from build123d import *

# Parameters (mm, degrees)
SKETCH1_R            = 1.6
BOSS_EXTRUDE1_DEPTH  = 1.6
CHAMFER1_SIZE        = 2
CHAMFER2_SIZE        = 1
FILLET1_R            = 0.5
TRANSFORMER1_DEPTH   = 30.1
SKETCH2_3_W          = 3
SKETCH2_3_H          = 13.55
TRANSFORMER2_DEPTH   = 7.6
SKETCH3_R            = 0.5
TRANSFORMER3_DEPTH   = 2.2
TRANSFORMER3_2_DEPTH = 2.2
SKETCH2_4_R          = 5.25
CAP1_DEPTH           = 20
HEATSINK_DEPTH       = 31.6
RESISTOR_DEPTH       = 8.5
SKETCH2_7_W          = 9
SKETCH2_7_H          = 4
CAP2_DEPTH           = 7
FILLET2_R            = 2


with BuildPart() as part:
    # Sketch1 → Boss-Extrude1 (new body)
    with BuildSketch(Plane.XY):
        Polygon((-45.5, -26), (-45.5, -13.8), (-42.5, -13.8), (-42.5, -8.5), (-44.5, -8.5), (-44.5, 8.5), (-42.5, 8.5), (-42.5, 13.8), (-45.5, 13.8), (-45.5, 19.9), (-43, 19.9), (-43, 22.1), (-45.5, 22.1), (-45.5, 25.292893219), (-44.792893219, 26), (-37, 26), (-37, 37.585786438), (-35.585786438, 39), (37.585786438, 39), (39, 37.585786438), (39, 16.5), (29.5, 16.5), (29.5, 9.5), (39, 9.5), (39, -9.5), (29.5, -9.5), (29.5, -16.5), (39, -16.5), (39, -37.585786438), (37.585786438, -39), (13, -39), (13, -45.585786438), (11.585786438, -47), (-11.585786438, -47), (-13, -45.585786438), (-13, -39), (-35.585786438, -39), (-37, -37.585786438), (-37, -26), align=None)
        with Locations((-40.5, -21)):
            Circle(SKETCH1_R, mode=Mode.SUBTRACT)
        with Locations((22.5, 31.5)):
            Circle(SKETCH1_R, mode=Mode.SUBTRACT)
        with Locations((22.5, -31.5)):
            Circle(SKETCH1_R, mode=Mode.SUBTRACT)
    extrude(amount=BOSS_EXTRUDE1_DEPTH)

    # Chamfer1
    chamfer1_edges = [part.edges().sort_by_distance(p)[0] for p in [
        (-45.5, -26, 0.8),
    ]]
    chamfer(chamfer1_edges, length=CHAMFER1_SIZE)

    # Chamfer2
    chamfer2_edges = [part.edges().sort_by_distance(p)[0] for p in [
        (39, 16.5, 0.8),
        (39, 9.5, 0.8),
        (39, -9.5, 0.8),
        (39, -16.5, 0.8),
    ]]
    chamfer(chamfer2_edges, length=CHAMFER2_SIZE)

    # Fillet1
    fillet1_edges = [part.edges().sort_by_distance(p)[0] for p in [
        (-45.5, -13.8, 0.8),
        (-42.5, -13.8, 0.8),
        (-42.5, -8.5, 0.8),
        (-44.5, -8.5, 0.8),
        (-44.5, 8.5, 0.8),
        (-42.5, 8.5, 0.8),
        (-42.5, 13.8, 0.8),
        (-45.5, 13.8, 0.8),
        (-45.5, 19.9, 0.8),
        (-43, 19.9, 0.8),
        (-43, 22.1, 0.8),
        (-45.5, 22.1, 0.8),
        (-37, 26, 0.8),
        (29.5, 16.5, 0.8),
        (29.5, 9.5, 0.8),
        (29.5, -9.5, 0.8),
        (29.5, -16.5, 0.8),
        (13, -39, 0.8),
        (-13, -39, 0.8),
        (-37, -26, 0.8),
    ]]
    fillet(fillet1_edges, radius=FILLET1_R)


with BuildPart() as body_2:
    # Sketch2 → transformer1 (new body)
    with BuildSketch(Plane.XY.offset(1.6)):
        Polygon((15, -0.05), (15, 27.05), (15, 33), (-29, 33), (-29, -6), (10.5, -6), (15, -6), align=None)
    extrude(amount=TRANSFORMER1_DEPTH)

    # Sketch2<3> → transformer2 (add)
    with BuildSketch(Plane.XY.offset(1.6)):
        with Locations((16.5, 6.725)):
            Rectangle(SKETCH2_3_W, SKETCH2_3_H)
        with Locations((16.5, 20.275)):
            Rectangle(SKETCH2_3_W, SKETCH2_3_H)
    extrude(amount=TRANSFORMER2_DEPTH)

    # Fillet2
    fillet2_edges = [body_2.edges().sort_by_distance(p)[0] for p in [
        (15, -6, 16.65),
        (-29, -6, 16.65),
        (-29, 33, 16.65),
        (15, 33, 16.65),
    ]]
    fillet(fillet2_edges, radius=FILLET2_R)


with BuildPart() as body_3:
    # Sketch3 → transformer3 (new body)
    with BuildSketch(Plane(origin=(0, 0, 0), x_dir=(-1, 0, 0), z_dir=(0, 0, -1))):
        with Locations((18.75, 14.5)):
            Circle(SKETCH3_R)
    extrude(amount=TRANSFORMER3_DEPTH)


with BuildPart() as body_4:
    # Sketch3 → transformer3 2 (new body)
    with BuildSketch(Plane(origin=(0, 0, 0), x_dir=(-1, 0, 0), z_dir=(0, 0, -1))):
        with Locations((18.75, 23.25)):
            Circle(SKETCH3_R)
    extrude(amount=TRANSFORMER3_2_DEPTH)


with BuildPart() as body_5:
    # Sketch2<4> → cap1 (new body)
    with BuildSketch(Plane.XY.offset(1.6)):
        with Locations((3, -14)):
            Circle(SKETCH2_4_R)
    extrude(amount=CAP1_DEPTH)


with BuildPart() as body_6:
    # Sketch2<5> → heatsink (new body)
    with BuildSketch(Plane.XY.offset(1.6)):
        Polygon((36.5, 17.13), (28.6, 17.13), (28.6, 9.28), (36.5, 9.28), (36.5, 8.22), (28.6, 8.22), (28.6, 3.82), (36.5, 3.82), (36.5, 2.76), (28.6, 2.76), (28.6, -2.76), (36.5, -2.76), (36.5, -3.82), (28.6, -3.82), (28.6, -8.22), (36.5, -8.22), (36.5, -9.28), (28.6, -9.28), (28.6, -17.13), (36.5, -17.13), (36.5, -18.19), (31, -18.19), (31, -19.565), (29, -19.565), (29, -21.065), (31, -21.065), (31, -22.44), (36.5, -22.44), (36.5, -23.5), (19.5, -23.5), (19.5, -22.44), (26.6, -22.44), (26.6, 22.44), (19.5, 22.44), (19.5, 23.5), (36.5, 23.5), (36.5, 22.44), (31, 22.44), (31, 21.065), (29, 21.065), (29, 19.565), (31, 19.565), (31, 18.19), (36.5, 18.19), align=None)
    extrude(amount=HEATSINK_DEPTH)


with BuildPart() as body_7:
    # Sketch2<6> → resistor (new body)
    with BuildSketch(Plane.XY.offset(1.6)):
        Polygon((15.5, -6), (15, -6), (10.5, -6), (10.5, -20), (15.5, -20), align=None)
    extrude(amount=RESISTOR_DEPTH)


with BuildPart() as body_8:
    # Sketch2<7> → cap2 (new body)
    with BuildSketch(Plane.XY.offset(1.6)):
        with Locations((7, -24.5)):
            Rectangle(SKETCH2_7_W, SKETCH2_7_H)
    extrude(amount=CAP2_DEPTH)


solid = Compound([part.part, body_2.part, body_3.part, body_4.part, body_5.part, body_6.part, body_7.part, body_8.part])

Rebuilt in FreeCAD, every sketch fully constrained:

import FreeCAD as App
import Part
import Sketcher
from FreeCAD import Vector


def edges_at(feature, points):
    """Names of the edges that pass closest to the given points."""
    edges = feature.Shape.Edges
    near = lambda p: min(range(len(edges)), key=lambda i: edges[i].distToShape(Part.Vertex(*p))[0])
    return sorted({f"Edge{near(p) + 1}" for p in points})


def add_polygon(sketch, points):
    """Adds a closed chain of lines whose ends are joined by coincident constraints."""
    first, n = sketch.GeometryCount, len(points)
    for a, b in zip(points, points[1:] + points[:1]):
        sketch.addGeometry(Part.LineSegment(App.Vector(*a, 0), App.Vector(*b, 0)), False)
    for i in range(n):
        sketch.addConstraint(Sketcher.Constraint("Coincident", first + i, 2, first + (i + 1) % n, 1))

doc = App.newDocument("Part")
body = doc.addObject("PartDesign::Body", "Body")

# Sketch on XY plane
sketch1 = body.newObject("Sketcher::SketchObject", "Sketch")
sketch1.AttachmentSupport = (doc.getObject("XY_Plane"), [""])
sketch1.MapMode = "FlatFace"
add_polygon(sketch1, [(-45.5, -13.8), (-45.5, -26), (-37, -26), (-37, -37.585786), (-35.585786, -39), (-13, -39), (-13, -45.585786), (-11.585786, -47), (11.585786, -47), (13, -45.585786), (13, -39), (37.585786, -39), (39, -37.585786), (39, -16.5), (29.5, -16.5), (29.5, -9.5), (39, -9.5), (39, 9.5), (29.5, 9.5), (29.5, 16.5), (39, 16.5), (39, 37.585786), (37.585786, 39), (-35.585786, 39), (-37, 37.585786), (-37, 26), (-44.792893, 26), (-45.5, 25.292893), (-45.5, 22.1), (-43, 22.1), (-43, 19.9), (-45.5, 19.9), (-45.5, 13.8), (-42.5, 13.8), (-42.5, 8.5), (-44.5, 8.5), (-44.5, -8.5), (-42.5, -8.5), (-42.5, -13.8)])  # lines 0-38
sketch1.addGeometry(Part.Circle(Vector(22.5, -31.5, 0), Vector(0, 0, 1), 1.6), False)  # 39
sketch1.addGeometry(Part.Circle(Vector(-40.5, -21, 0), Vector(0, 0, 1), 1.6), False)  # 40
sketch1.addGeometry(Part.Circle(Vector(22.5, 31.5, 0), Vector(0, 0, 1), 1.6), False)  # 41
sketch1.addConstraint(Sketcher.Constraint("Vertical", 0))
sketch1.addConstraint(Sketcher.Constraint("Horizontal", 1))
sketch1.addConstraint(Sketcher.Constraint("Vertical", 2))
sketch1.addConstraint(Sketcher.Constraint("Horizontal", 4))
sketch1.addConstraint(Sketcher.Constraint("Vertical", 5))
sketch1.addConstraint(Sketcher.Constraint("Horizontal", 7))
sketch1.addConstraint(Sketcher.Constraint("Vertical", 9))
sketch1.addConstraint(Sketcher.Constraint("Horizontal", 10))
sketch1.addConstraint(Sketcher.Constraint("Vertical", 12))
sketch1.addConstraint(Sketcher.Constraint("Horizontal", 13))
sketch1.addConstraint(Sketcher.Constraint("Vertical", 14))
sketch1.addConstraint(Sketcher.Constraint("Horizontal", 15))
sketch1.addConstraint(Sketcher.Constraint("Vertical", 16))
sketch1.addConstraint(Sketcher.Constraint("Horizontal", 17))
sketch1.addConstraint(Sketcher.Constraint("Vertical", 18))
sketch1.addConstraint(Sketcher.Constraint("Horizontal", 19))
sketch1.addConstraint(Sketcher.Constraint("Vertical", 20))
sketch1.addConstraint(Sketcher.Constraint("Horizontal", 22))
sketch1.addConstraint(Sketcher.Constraint("Vertical", 24))
sketch1.addConstraint(Sketcher.Constraint("Horizontal", 25))
sketch1.addConstraint(Sketcher.Constraint("Vertical", 27))
sketch1.addConstraint(Sketcher.Constraint("Horizontal", 28))
sketch1.addConstraint(Sketcher.Constraint("Vertical", 29))
sketch1.addConstraint(Sketcher.Constraint("Horizontal", 30))
sketch1.addConstraint(Sketcher.Constraint("Vertical", 31))
sketch1.addConstraint(Sketcher.Constraint("Horizontal", 32))
sketch1.addConstraint(Sketcher.Constraint("Vertical", 33))
sketch1.addConstraint(Sketcher.Constraint("Horizontal", 34))
sketch1.addConstraint(Sketcher.Constraint("Vertical", 35))
sketch1.addConstraint(Sketcher.Constraint("Horizontal", 36))
sketch1.addConstraint(Sketcher.Constraint("Vertical", 37))
sketch1.addConstraint(Sketcher.Constraint("Horizontal", 38))
sketch1.addConstraint(Sketcher.Constraint("Equal", 39, 40))
sketch1.addConstraint(Sketcher.Constraint("Equal", 40, 41))
sketch1.addConstraint(Sketcher.Constraint("Symmetric", 5, 2, 8, 2, -2))
sketch1.addConstraint(Sketcher.Constraint("Symmetric", 39, 3, 41, 3, -1))
sketch1.addConstraint(Sketcher.Constraint("Symmetric", 14, 2, 17, 2, -1))
sketch1.addConstraint(Sketcher.Constraint("Symmetric", 12, 2, 19, 2, -1))
sketch1.addConstraint(Sketcher.Constraint("Symmetric", 10, 2, 21, 2, -1))
sketch1.addConstraint(Sketcher.Constraint("Symmetric", 3, 2, 22, 2, -1))
sketch1.addConstraint(Sketcher.Constraint("Symmetric", 2, 2, 23, 2, -1))
sketch1.addConstraint(Sketcher.Constraint("Symmetric", 33, 2, 36, 2, -1))
sketch1.addConstraint(Sketcher.Constraint("Symmetric", 31, 2, 38, 2, -1))
sketch1.addConstraint(Sketcher.Constraint("Parallel", 3, 6))
sketch1.addConstraint(Sketcher.Constraint("Perpendicular", 6, 8))
sketch1.addConstraint(Sketcher.Constraint("Parallel", 8, 11))
sketch1.addConstraint(Sketcher.Constraint("Perpendicular", 11, 21))
sketch1.addConstraint(Sketcher.Constraint("Perpendicular", 21, 23))
sketch1.addConstraint(Sketcher.Constraint("Parallel", 23, 26))
sketch1.addConstraint(Sketcher.Constraint("Horizontal", 2, 2, 11, 2))
sketch1.addConstraint(Sketcher.Constraint("Vertical", 12, 2, 15, 2))
sketch1.addConstraint(Sketcher.Constraint("Vertical", 0, 2, 26, 2))
sketch1.addConstraint(Sketcher.Constraint("Equal", 2, 24))
sketch1.addConstraint(Sketcher.Constraint("Equal", 3, 6))
sketch1.addConstraint(Sketcher.Constraint("Diameter", 39, 3.2))
sketch1.addConstraint(Sketcher.Constraint("DistanceX", 32, 1, 32, 2, 3.0))
sketch1.addConstraint(Sketcher.Constraint("DistanceX", 34, 2, 34, 1, 2.0))
sketch1.addConstraint(Sketcher.Constraint("DistanceY", 14, 1, 14, 2, 7.0))
sketch1.addConstraint(Sketcher.Constraint("DistanceY", 16, 1, 16, 2, 19.0))
sketch1.addConstraint(Sketcher.Constraint("DistanceY", 35, 2, 35, 1, 17.0))
sketch1.addConstraint(Sketcher.Constraint("Distance", 3, 2.0))
sketch1.addConstraint(Sketcher.Constraint("Distance", 26, 1.0))
sketch1.addConstraint(Sketcher.Constraint("DistanceX", 1, 1, 1, 2, 8.5))
sketch1.addConstraint(Sketcher.Constraint("DistanceX", 13, 2, 13, 1, 9.5))
sketch1.addConstraint(Sketcher.Constraint("DistanceX", 28, 1, 28, 2, 2.5))
sketch1.addConstraint(Sketcher.Constraint("DistanceY", 0, 2, 0, 1, 12.2))
sketch1.addConstraint(Sketcher.Constraint("DistanceY", 29, 2, 29, 1, 2.2))
sketch1.addConstraint(Sketcher.Constraint("DistanceY", 31, 2, 31, 1, 6.1))
sketch1.addConstraint(Sketcher.Constraint("DistanceY", 33, 2, 33, 1, 5.3))
sketch1.addConstraint(Sketcher.Constraint("DistanceY", 40, 3, -1, 1, 21.0))
sketch1.addConstraint(Sketcher.Constraint("DistanceX", 1, 2, -1, 1, 37.0))
sketch1.addConstraint(Sketcher.Constraint("DistanceY", 3, 2, -1, 1, 39.0))
sketch1.addConstraint(Sketcher.Constraint("DistanceX", 4, 2, -1, 1, 13.0))
sketch1.addConstraint(Sketcher.Constraint("DistanceY", 6, 2, -1, 1, 47.0))
sketch1.addConstraint(Sketcher.Constraint("DistanceX", -1, 1, 11, 2, 39.0))
sketch1.addConstraint(Sketcher.Constraint("DistanceX", 40, 3, 39, 3, 63.0))
sketch1.addConstraint(Sketcher.Constraint("DistanceY", 39, 3, 41, 3, 63.0))
sketch1.addConstraint(Sketcher.Constraint("DistanceX", 0, 2, 40, 3, 5.0))
pad1 = body.newObject("PartDesign::Pad", "Pad")
pad1.Profile = sketch1
pad1.Length = 1.6
doc.recompute()

chamfer = body.newObject("PartDesign::Chamfer", "Chamfer")
chamfer.Base = (pad1, edges_at(pad1, [(-45.5, -26, 0.8)]))
chamfer.Size = 2
doc.recompute()

chamfer2 = body.newObject("PartDesign::Chamfer", "Chamfer001")
chamfer2.Base = (chamfer, edges_at(chamfer, [
    (39, 16.5, 0.8),
    (39, 9.5, 0.8),
    (39, -9.5, 0.8),
    (39, -16.5, 0.8),
]))
chamfer2.Size = 1
doc.recompute()

fillet = body.newObject("PartDesign::Fillet", "Fillet")
fillet.Base = (chamfer2, edges_at(chamfer2, [
    (-45.5, -13.8, 0.8),
    (-42.5, -13.8, 0.8),
    (-42.5, -8.5, 0.8),
    (-44.5, -8.5, 0.8),
    (-44.5, 8.5, 0.8),
    (-42.5, 8.5, 0.8),
    (-42.5, 13.8, 0.8),
    (-45.5, 13.8, 0.8),
    (-45.5, 19.9, 0.8),
    (-43, 19.9, 0.8),
    (-43, 22.1, 0.8),
    (-45.5, 22.1, 0.8),
    (-37, 26, 0.8),
    (29.5, 16.5, 0.8),
    (29.5, 9.5, 0.8),
    (29.5, -9.5, 0.8),
    (29.5, -16.5, 0.8),
    (13, -39, 0.8),
    (-13, -39, 0.8),
    (-37, -26, 0.8),
]))
fillet.Radius = 0.5
body2 = doc.addObject("PartDesign::Body", "Body001")

# Sketch on XY plane
sketch2 = body2.newObject("Sketcher::SketchObject", "Sketch001")
sketch2.AttachmentSupport = (doc.getObject("XY_Plane001"), [""])
sketch2.MapMode = "FlatFace"
sketch2.AttachmentOffset = App.Placement(Vector(0, 0, 1.6), App.Rotation())
add_polygon(sketch2, [(15, 33), (-29, 33), (-29, -6), (15, -6)])  # lines 0-3
sketch2.addConstraint(Sketcher.Constraint("Horizontal", 0))
sketch2.addConstraint(Sketcher.Constraint("Vertical", 1))
sketch2.addConstraint(Sketcher.Constraint("Horizontal", 2))
sketch2.addConstraint(Sketcher.Constraint("Vertical", 3))
sketch2.addConstraint(Sketcher.Constraint("DistanceX", 0, 2, 0, 1, 44.0))
sketch2.addConstraint(Sketcher.Constraint("DistanceY", 1, 2, 1, 1, 39.0))
sketch2.addConstraint(Sketcher.Constraint("DistanceX", 0, 2, -1, 1, 29.0))
sketch2.addConstraint(Sketcher.Constraint("DistanceY", -1, 1, 0, 2, 33.0))
pad2 = body2.newObject("PartDesign::Pad", "Pad001")
pad2.Profile = sketch2
pad2.Length = 30.1

# Sketch on XY plane
sketch3 = body2.newObject("Sketcher::SketchObject", "Sketch002")
sketch3.AttachmentSupport = (doc.getObject("XY_Plane001"), [""])
sketch3.MapMode = "FlatFace"
sketch3.AttachmentOffset = App.Placement(Vector(0, 0, 1.6), App.Rotation())
add_polygon(sketch3, [(15, -0.05), (18, -0.05), (18, 27.05), (15, 27.05)])  # lines 0-3
sketch3.addConstraint(Sketcher.Constraint("Horizontal", 0))
sketch3.addConstraint(Sketcher.Constraint("Vertical", 1))
sketch3.addConstraint(Sketcher.Constraint("Horizontal", 2))
sketch3.addConstraint(Sketcher.Constraint("Vertical", 3))
sketch3.addConstraint(Sketcher.Constraint("DistanceX", 0, 1, 0, 2, 3.0))
sketch3.addConstraint(Sketcher.Constraint("DistanceY", 1, 1, 1, 2, 27.1))
sketch3.addConstraint(Sketcher.Constraint("DistanceX", -1, 1, 0, 2, 18.0))
sketch3.addConstraint(Sketcher.Constraint("DistanceY", 0, 2, -1, 1, 0.05))
pad3 = body2.newObject("PartDesign::Pad", "Pad002")
pad3.Profile = sketch3
pad3.Length = 7.6
doc.recompute()

fillet2 = body2.newObject("PartDesign::Fillet", "Fillet001")
fillet2.Base = (pad3, edges_at(pad3, [
    (15, -6, 16.65),
    (-29, -6, 16.65),
    (-29, 33, 16.65),
    (15, 33, 16.65),
]))
fillet2.Radius = 2
body3 = doc.addObject("PartDesign::Body", "Body002")

# Sketch on XY plane
sketch4 = body3.newObject("Sketcher::SketchObject", "Sketch003")
sketch4.AttachmentSupport = (doc.getObject("XY_Plane002"), [""])
sketch4.MapMode = "FlatFace"
sketch4.addGeometry(Part.Circle(Vector(-18.75, 14.5, 0), Vector(0, 0, 1), 0.5), False)
sketch4.addConstraint(Sketcher.Constraint("Diameter", 0, 1.0))
sketch4.addConstraint(Sketcher.Constraint("DistanceY", -1, 1, 0, 3, 14.5))
sketch4.addConstraint(Sketcher.Constraint("DistanceX", 0, 3, -1, 1, 18.75))
pad4 = body3.newObject("PartDesign::Pad", "Pad003")
pad4.Profile = sketch4
pad4.Length = 2.2
pad4.Reversed = True
body4 = doc.addObject("PartDesign::Body", "Body003")

# Sketch on XY plane
sketch5 = body4.newObject("Sketcher::SketchObject", "Sketch004")
sketch5.AttachmentSupport = (doc.getObject("XY_Plane003"), [""])
sketch5.MapMode = "FlatFace"
sketch5.addGeometry(Part.Circle(Vector(-18.75, 23.25, 0), Vector(0, 0, 1), 0.5), False)
sketch5.addConstraint(Sketcher.Constraint("Diameter", 0, 1.0))
sketch5.addConstraint(Sketcher.Constraint("DistanceX", 0, 3, -1, 1, 18.75))
sketch5.addConstraint(Sketcher.Constraint("DistanceY", -1, 1, 0, 3, 23.25))
pad5 = body4.newObject("PartDesign::Pad", "Pad004")
pad5.Profile = sketch5
pad5.Length = 2.2
pad5.Reversed = True
body5 = doc.addObject("PartDesign::Body", "Body004")

# Sketch on XY plane
sketch6 = body5.newObject("Sketcher::SketchObject", "Sketch005")
sketch6.AttachmentSupport = (doc.getObject("XY_Plane004"), [""])
sketch6.MapMode = "FlatFace"
sketch6.AttachmentOffset = App.Placement(Vector(0, 0, 1.6), App.Rotation())
sketch6.addGeometry(Part.Circle(Vector(3, -14, 0), Vector(0, 0, 1), 5.25), False)
sketch6.addConstraint(Sketcher.Constraint("Diameter", 0, 10.5))
sketch6.addConstraint(Sketcher.Constraint("DistanceX", -1, 1, 0, 3, 3.0))
sketch6.addConstraint(Sketcher.Constraint("DistanceY", 0, 3, -1, 1, 14.0))
pad6 = body5.newObject("PartDesign::Pad", "Pad005")
pad6.Profile = sketch6
pad6.Length = 20
body6 = doc.addObject("PartDesign::Body", "Body005")

# Sketch on XY plane
sketch7 = body6.newObject("Sketcher::SketchObject", "Sketch006")
sketch7.AttachmentSupport = (doc.getObject("XY_Plane005"), [""])
sketch7.MapMode = "FlatFace"
sketch7.AttachmentOffset = App.Placement(Vector(0, 0, 1.6), App.Rotation())
add_polygon(sketch7, [(28.6, 17.13), (36.5, 17.13), (36.5, 18.19), (31, 18.19), (31, 19.565), (29, 19.565), (29, 21.065), (31, 21.065), (31, 22.44), (36.5, 22.44), (36.5, 23.5), (19.5, 23.5), (19.5, 22.44), (26.6, 22.44), (26.6, -22.44), (19.5, -22.44), (19.5, -23.5), (36.5, -23.5), (36.5, -22.44), (31, -22.44), (31, -21.065), (29, -21.065), (29, -19.565), (31, -19.565), (31, -18.19), (36.5, -18.19), (36.5, -17.13), (28.6, -17.13), (28.6, -9.28), (36.5, -9.28), (36.5, -8.22), (28.6, -8.22), (28.6, -3.82), (36.5, -3.82), (36.5, -2.76), (28.6, -2.76), (28.6, 2.76), (36.5, 2.76), (36.5, 3.82), (28.6, 3.82), (28.6, 8.22), (36.5, 8.22), (36.5, 9.28), (28.6, 9.28)])  # lines 0-43
sketch7.addConstraint(Sketcher.Constraint("Horizontal", 0))
sketch7.addConstraint(Sketcher.Constraint("Vertical", 1))
sketch7.addConstraint(Sketcher.Constraint("Horizontal", 2))
sketch7.addConstraint(Sketcher.Constraint("Vertical", 3))
sketch7.addConstraint(Sketcher.Constraint("Horizontal", 4))
sketch7.addConstraint(Sketcher.Constraint("Vertical", 5))
sketch7.addConstraint(Sketcher.Constraint("Horizontal", 6))
sketch7.addConstraint(Sketcher.Constraint("Vertical", 7))
sketch7.addConstraint(Sketcher.Constraint("Horizontal", 8))
sketch7.addConstraint(Sketcher.Constraint("Vertical", 9))
sketch7.addConstraint(Sketcher.Constraint("Horizontal", 10))
sketch7.addConstraint(Sketcher.Constraint("Vertical", 11))
sketch7.addConstraint(Sketcher.Constraint("Horizontal", 12))
sketch7.addConstraint(Sketcher.Constraint("Vertical", 13))
sketch7.addConstraint(Sketcher.Constraint("Horizontal", 14))
sketch7.addConstraint(Sketcher.Constraint("Vertical", 15))
sketch7.addConstraint(Sketcher.Constraint("Horizontal", 16))
sketch7.addConstraint(Sketcher.Constraint("Vertical", 17))
sketch7.addConstraint(Sketcher.Constraint("Horizontal", 18))
sketch7.addConstraint(Sketcher.Constraint("Vertical", 19))
sketch7.addConstraint(Sketcher.Constraint("Horizontal", 20))
sketch7.addConstraint(Sketcher.Constraint("Vertical", 21))
sketch7.addConstraint(Sketcher.Constraint("Horizontal", 22))
sketch7.addConstraint(Sketcher.Constraint("Vertical", 23))
sketch7.addConstraint(Sketcher.Constraint("Horizontal", 24))
sketch7.addConstraint(Sketcher.Constraint("Vertical", 25))
sketch7.addConstraint(Sketcher.Constraint("Horizontal", 26))
sketch7.addConstraint(Sketcher.Constraint("Vertical", 27))
sketch7.addConstraint(Sketcher.Constraint("Horizontal", 28))
sketch7.addConstraint(Sketcher.Constraint("Vertical", 29))
sketch7.addConstraint(Sketcher.Constraint("Horizontal", 30))
sketch7.addConstraint(Sketcher.Constraint("Vertical", 31))
sketch7.addConstraint(Sketcher.Constraint("Horizontal", 32))
sketch7.addConstraint(Sketcher.Constraint("Vertical", 33))
sketch7.addConstraint(Sketcher.Constraint("Horizontal", 34))
sketch7.addConstraint(Sketcher.Constraint("Vertical", 35))
sketch7.addConstraint(Sketcher.Constraint("Horizontal", 36))
sketch7.addConstraint(Sketcher.Constraint("Vertical", 37))
sketch7.addConstraint(Sketcher.Constraint("Horizontal", 38))
sketch7.addConstraint(Sketcher.Constraint("Vertical", 39))
sketch7.addConstraint(Sketcher.Constraint("Horizontal", 40))
sketch7.addConstraint(Sketcher.Constraint("Vertical", 41))
sketch7.addConstraint(Sketcher.Constraint("Horizontal", 42))
sketch7.addConstraint(Sketcher.Constraint("Vertical", 43))
sketch7.addConstraint(Sketcher.Constraint("Symmetric", 11, 2, 14, 2, -1))
sketch7.addConstraint(Sketcher.Constraint("Symmetric", 9, 2, 16, 2, -1))
sketch7.addConstraint(Sketcher.Constraint("Symmetric", 7, 2, 18, 2, -1))
sketch7.addConstraint(Sketcher.Constraint("Symmetric", 5, 2, 20, 2, -1))
sketch7.addConstraint(Sketcher.Constraint("Symmetric", 3, 2, 22, 2, -1))
sketch7.addConstraint(Sketcher.Constraint("Symmetric", 1, 2, 24, 2, -1))
sketch7.addConstraint(Sketcher.Constraint("Symmetric", 33, 2, 36, 2, -1))
sketch7.addConstraint(Sketcher.Constraint("Symmetric", 31, 2, 38, 2, -1))
sketch7.addConstraint(Sketcher.Constraint("Symmetric", 29, 2, 40, 2, -1))
sketch7.addConstraint(Sketcher.Constraint("Symmetric", 27, 2, 42, 2, -1))
sketch7.addConstraint(Sketcher.Constraint("Horizontal", 8, 2, 11, 2))
sketch7.addConstraint(Sketcher.Constraint("Vertical", 3, 2, 6, 2))
sketch7.addConstraint(Sketcher.Constraint("Vertical", 1, 2, 8, 2))
sketch7.addConstraint(Sketcher.Constraint("Vertical", 25, 2, 28, 2))
sketch7.addConstraint(Sketcher.Constraint("Vertical", 27, 2, 30, 2))
sketch7.addConstraint(Sketcher.Constraint("Vertical", 29, 2, 32, 2))
sketch7.addConstraint(Sketcher.Constraint("Vertical", 31, 2, 34, 2))
sketch7.addConstraint(Sketcher.Constraint("Equal", 3, 7))
sketch7.addConstraint(Sketcher.Constraint("Equal", 1, 9))
sketch7.addConstraint(Sketcher.Constraint("Equal", 17, 25))
sketch7.addConstraint(Sketcher.Constraint("Equal", 25, 29))
sketch7.addConstraint(Sketcher.Constraint("Equal", 29, 33))
sketch7.addConstraint(Sketcher.Constraint("DistanceX", 4, 2, 4, 1, 2.0))
sketch7.addConstraint(Sketcher.Constraint("DistanceX", 10, 2, 10, 1, 17.0))
sketch7.addConstraint(Sketcher.Constraint("DistanceX", 0, 1, 0, 2, 7.9))
sketch7.addConstraint(Sketcher.Constraint("DistanceX", 2, 2, 2, 1, 5.5))
sketch7.addConstraint(Sketcher.Constraint("DistanceX", 12, 1, 12, 2, 7.1))
sketch7.addConstraint(Sketcher.Constraint("DistanceY", 5, 1, 5, 2, 1.5))
sketch7.addConstraint(Sketcher.Constraint("DistanceY", 31, 1, 31, 2, 4.4))
sketch7.addConstraint(Sketcher.Constraint("DistanceX", -1, 1, 2, 2, 31.0))
sketch7.addConstraint(Sketcher.Constraint("DistanceY", 1, 1, 1, 2, 1.06))
sketch7.addConstraint(Sketcher.Constraint("DistanceY", 13, 2, 13, 1, 44.88))
sketch7.addConstraint(Sketcher.Constraint("DistanceY", 27, 1, 27, 2, 7.85))
sketch7.addConstraint(Sketcher.Constraint("DistanceY", 35, 1, 35, 2, 5.52))
pad7 = body6.newObject("PartDesign::Pad", "Pad006")
pad7.Profile = sketch7
pad7.Length = 31.6
body7 = doc.addObject("PartDesign::Body", "Body006")

# Sketch on XY plane
sketch8 = body7.newObject("Sketcher::SketchObject", "Sketch007")
sketch8.AttachmentSupport = (doc.getObject("XY_Plane006"), [""])
sketch8.MapMode = "FlatFace"
sketch8.AttachmentOffset = App.Placement(Vector(0, 0, 1.6), App.Rotation())
add_polygon(sketch8, [(15.5, -6), (10.5, -6), (10.5, -20), (15.5, -20)])  # lines 0-3
sketch8.addConstraint(Sketcher.Constraint("Horizontal", 0))
sketch8.addConstraint(Sketcher.Constraint("Vertical", 1))
sketch8.addConstraint(Sketcher.Constraint("Horizontal", 2))
sketch8.addConstraint(Sketcher.Constraint("Vertical", 3))
sketch8.addConstraint(Sketcher.Constraint("DistanceX", 0, 2, 0, 1, 5.0))
sketch8.addConstraint(Sketcher.Constraint("DistanceY", 1, 2, 1, 1, 14.0))
sketch8.addConstraint(Sketcher.Constraint("DistanceY", 0, 2, -1, 1, 6.0))
sketch8.addConstraint(Sketcher.Constraint("DistanceX", -1, 1, 0, 2, 10.5))
pad8 = body7.newObject("PartDesign::Pad", "Pad007")
pad8.Profile = sketch8
pad8.Length = 8.5
body8 = doc.addObject("PartDesign::Body", "Body007")

# Sketch on XY plane
sketch9 = body8.newObject("Sketcher::SketchObject", "Sketch008")
sketch9.AttachmentSupport = (doc.getObject("XY_Plane007"), [""])
sketch9.MapMode = "FlatFace"
sketch9.AttachmentOffset = App.Placement(Vector(0, 0, 1.6), App.Rotation())
add_polygon(sketch9, [(2.5, -22.5), (2.5, -26.5), (11.5, -26.5), (11.5, -22.5)])  # lines 0-3
sketch9.addConstraint(Sketcher.Constraint("Vertical", 0))
sketch9.addConstraint(Sketcher.Constraint("Horizontal", 1))
sketch9.addConstraint(Sketcher.Constraint("Vertical", 2))
sketch9.addConstraint(Sketcher.Constraint("Horizontal", 3))
sketch9.addConstraint(Sketcher.Constraint("DistanceX", 1, 1, 1, 2, 9.0))
sketch9.addConstraint(Sketcher.Constraint("DistanceY", 0, 2, 0, 1, 4.0))
sketch9.addConstraint(Sketcher.Constraint("DistanceX", -1, 1, 0, 2, 2.5))
sketch9.addConstraint(Sketcher.Constraint("DistanceY", 0, 2, -1, 1, 26.5))
pad9 = body8.newObject("PartDesign::Pad", "Pad008")
pad9.Profile = sketch9
pad9.Length = 7

doc.recompute()
